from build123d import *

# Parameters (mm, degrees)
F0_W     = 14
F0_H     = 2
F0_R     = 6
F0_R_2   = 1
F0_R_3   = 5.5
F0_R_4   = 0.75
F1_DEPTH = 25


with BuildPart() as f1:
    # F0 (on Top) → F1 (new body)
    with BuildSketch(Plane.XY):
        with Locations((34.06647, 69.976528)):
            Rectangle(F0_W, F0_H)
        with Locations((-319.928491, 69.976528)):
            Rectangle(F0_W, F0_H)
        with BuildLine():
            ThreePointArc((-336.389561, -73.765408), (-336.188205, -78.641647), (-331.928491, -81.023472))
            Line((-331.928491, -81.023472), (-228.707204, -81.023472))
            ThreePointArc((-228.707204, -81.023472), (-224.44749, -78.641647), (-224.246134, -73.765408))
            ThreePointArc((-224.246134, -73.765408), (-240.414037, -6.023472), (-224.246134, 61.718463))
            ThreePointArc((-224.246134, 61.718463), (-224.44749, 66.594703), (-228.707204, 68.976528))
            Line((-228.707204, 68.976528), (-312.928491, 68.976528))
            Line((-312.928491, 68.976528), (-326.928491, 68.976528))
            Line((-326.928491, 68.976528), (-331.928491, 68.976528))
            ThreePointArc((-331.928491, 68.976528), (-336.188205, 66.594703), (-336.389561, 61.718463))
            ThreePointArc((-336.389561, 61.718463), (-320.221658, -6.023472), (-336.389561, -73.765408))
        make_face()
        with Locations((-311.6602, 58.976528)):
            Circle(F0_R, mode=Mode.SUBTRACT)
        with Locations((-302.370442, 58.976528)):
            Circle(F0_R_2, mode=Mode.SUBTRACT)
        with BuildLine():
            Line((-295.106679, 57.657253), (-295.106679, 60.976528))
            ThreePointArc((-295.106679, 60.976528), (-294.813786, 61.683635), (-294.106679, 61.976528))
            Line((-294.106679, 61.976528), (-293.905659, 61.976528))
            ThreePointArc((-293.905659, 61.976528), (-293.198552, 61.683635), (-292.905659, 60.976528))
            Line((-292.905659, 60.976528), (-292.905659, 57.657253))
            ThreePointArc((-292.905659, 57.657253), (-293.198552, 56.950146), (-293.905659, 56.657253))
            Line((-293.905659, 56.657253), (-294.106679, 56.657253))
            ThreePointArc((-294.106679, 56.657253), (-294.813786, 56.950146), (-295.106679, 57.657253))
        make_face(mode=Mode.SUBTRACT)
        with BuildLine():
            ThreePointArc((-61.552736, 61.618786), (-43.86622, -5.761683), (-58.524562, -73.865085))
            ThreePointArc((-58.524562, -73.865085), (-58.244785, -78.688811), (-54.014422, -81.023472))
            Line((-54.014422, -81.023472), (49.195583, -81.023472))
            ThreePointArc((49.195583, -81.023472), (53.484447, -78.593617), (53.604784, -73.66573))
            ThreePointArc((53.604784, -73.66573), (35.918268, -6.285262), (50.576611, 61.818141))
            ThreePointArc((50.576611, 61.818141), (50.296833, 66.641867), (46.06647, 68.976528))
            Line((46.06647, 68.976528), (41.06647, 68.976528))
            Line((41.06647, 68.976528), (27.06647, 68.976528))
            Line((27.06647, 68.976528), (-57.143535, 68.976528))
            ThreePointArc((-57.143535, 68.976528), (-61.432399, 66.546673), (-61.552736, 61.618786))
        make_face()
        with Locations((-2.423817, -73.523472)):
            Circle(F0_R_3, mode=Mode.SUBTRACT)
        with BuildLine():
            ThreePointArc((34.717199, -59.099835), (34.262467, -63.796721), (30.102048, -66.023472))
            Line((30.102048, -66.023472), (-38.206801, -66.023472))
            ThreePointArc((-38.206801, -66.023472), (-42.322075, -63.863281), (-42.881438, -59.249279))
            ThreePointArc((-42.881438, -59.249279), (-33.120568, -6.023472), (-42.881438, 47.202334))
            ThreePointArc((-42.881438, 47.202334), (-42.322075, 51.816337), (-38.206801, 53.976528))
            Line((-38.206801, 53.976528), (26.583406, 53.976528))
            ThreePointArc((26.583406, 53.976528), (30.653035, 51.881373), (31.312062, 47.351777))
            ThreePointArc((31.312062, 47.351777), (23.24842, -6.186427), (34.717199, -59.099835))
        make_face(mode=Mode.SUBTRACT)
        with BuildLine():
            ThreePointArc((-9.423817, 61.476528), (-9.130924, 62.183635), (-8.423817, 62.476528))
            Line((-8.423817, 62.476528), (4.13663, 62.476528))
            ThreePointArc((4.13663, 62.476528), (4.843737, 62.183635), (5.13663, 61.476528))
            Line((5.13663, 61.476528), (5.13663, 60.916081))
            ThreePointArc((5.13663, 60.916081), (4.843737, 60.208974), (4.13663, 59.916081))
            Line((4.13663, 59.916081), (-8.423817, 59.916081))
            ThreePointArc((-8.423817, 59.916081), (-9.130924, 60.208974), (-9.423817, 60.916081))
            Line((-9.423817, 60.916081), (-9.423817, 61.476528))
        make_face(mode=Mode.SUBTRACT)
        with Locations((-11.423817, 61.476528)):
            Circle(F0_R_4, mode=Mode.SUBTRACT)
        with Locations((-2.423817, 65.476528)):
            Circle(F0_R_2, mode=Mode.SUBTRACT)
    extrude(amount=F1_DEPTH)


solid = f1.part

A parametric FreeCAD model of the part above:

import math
import FreeCAD as App
import Part
import Sketcher
from FreeCAD import Vector

doc = App.newDocument("Part")
body = doc.addObject("PartDesign::Body", "Body")
body.AllowCompound = True

sketch1 = body.newObject("Sketcher::SketchObject", "Sketch")
sketch1.AttachmentSupport = (doc.getObject("XY_Plane"), [""])
sketch1.MapMode = "FlatFace"
sketch1.addGeometry([
    Part.LineSegment(Vector(27.07, 70.98, 0), Vector(27.07, 68.98, 0)),
    Part.LineSegment(Vector(27.07, 68.98, 0), Vector(-57.14, 68.98, 0)),
    Part.ArcOfCircle(Part.Circle(Vector(-57.14, 63.98, 0), Vector(0, 0, 1), 5), math.radians(90), math.radians(208)),
    Part.ArcOfCircle(Part.Circle(Vector(-193.83, -9.11, 0), Vector(0, 0, 1), 150), math.radians(-26), math.radians(28)),
    Part.ArcOfCircle(Part.Circle(Vector(-54.01, -76.02, 0), Vector(0, 0, 1), 5), math.radians(154), math.radians(270)),
    Part.LineSegment(Vector(-54.01, -81.02, 0), Vector(49.2, -81.02, 0)),
    Part.ArcOfCircle(Part.Circle(Vector(49.2, -76.02, 0), Vector(0, 0, 1), 5), math.radians(-90), math.radians(28)),
    Part.ArcOfCircle(Part.Circle(Vector(185.88, -2.93, 0), Vector(0, 0, 1), 150), math.radians(154), math.radians(208)),
    Part.ArcOfCircle(Part.Circle(Vector(46.07, 63.98, 0), Vector(0, 0, 1), 5), math.radians(-26), math.radians(90)),
    Part.LineSegment(Vector(46.07, 68.98, 0), Vector(41.07, 68.98, 0)),
    Part.LineSegment(Vector(41.07, 68.98, 0), Vector(41.07, 70.98, 0)),
    Part.LineSegment(Vector(41.07, 70.98, 0), Vector(27.07, 70.98, 0)),
    Part.Circle(Vector(-2.42, -73.52, 0), Vector(0, 0, 1), 5.5),
    Part.Circle(Vector(-11.42, 61.48, 0), Vector(0, 0, 1), 0.75),
    Part.ArcOfCircle(Part.Circle(Vector(173.17, -1.39, 0), Vector(0, 0, 1), 150), math.radians(161), math.radians(203)),
    Part.ArcOfCircle(Part.Circle(Vector(30.1, -61.02, 0), Vector(0, 0, 1), 5), math.radians(-90), math.radians(23)),
    Part.LineSegment(Vector(30.1, -66.02, 0), Vector(-38.21, -66.02, 0)),
    Part.ArcOfCircle(Part.Circle(Vector(-38.21, -61.02, 0), Vector(0, 0, 1), 5), math.radians(159), math.radians(270)),
    Part.ArcOfCircle(Part.Circle(Vector(-183.12, -6.02, 0), Vector(0, 0, 1), 150), math.radians(-21), math.radians(21)),
    Part.ArcOfCircle(Part.Circle(Vector(-38.21, 48.98, 0), Vector(0, 0, 1), 5), math.radians(90), math.radians(201)),
    Part.LineSegment(Vector(-38.21, 53.98, 0), Vector(26.58, 53.98, 0)),
    Part.ArcOfCircle(Part.Circle(Vector(26.58, 48.98, 0), Vector(0, 0, 1), 5), math.radians(-19), math.radians(90)),
    Part.LineSegment(Vector(-9.42, 60.92, 0), Vector(-9.42, 61.48, 0)),
    Part.ArcOfCircle(Part.Circle(Vector(-8.42, 61.48, 0), Vector(0, 0, 1), 1), math.radians(90), math.radians(180)),
    Part.LineSegment(Vector(-8.42, 62.48, 0), Vector(4.14, 62.48, 0)),
    Part.ArcOfCircle(Part.Circle(Vector(4.14, 61.48, 0), Vector(0, 0, 1), 1), math.radians(0), math.radians(90)),
    Part.LineSegment(Vector(5.14, 61.48, 0), Vector(5.14, 60.92, 0)),
    Part.ArcOfCircle(Part.Circle(Vector(4.14, 60.92, 0), Vector(0, 0, 1), 1), math.radians(-90), math.radians(0)),
    Part.LineSegment(Vector(4.14, 59.92, 0), Vector(-8.42, 59.92, 0)),
    Part.ArcOfCircle(Part.Circle(Vector(-8.42, 60.92, 0), Vector(0, 0, 1), 1), math.radians(180), math.radians(270)),
    Part.Circle(Vector(-2.42, 65.48, 0), Vector(0, 0, 1), 1),
    Part.LineSegment(Vector(-326.93, 70.98, 0), Vector(-326.93, 68.98, 0)),
    Part.LineSegment(Vector(-326.93, 68.98, 0), Vector(-331.93, 68.98, 0)),
    Part.ArcOfCircle(Part.Circle(Vector(-331.93, 63.98, 0), Vector(0, 0, 1), 5), math.radians(90), math.radians(207)),
    Part.ArcOfCircle(Part.Circle(Vector(-470.22, -6.02, 0), Vector(0, 0, 1), 150), math.radians(-27), math.radians(27)),
    Part.ArcOfCircle(Part.Circle(Vector(-331.93, -76.02, 0), Vector(0, 0, 1), 5), math.radians(153), math.radians(270)),
    Part.LineSegment(Vector(-331.93, -81.02, 0), Vector(-228.71, -81.02, 0)),
    Part.ArcOfCircle(Part.Circle(Vector(-228.71, -76.02, 0), Vector(0, 0, 1), 5), math.radians(-90), math.radians(27)),
    Part.ArcOfCircle(Part.Circle(Vector(-90.41, -6.02, 0), Vector(0, 0, 1), 150), math.radians(153), math.radians(207)),
    Part.ArcOfCircle(Part.Circle(Vector(-228.71, 63.98, 0), Vector(0, 0, 1), 5), math.radians(-27), math.radians(90)),
    Part.LineSegment(Vector(-228.71, 68.98, 0), Vector(-312.93, 68.98, 0)),
    Part.LineSegment(Vector(-312.93, 68.98, 0), Vector(-312.93, 70.98, 0)),
    Part.LineSegment(Vector(-312.93, 70.98, 0), Vector(-326.93, 70.98, 0)),
    Part.Circle(Vector(-311.66, 58.98, 0), Vector(0, 0, 1), 6),
    Part.Circle(Vector(-302.37, 58.98, 0), Vector(0, 0, 1), 1),
    Part.ArcOfCircle(Part.Circle(Vector(-294.11, 57.66, 0), Vector(0, 0, 1), 1), math.radians(180), math.radians(270)),
    Part.LineSegment(Vector(-295.11, 57.66, 0), Vector(-295.11, 60.98, 0)),
    Part.ArcOfCircle(Part.Circle(Vector(-294.11, 60.98, 0), Vector(0, 0, 1), 1), math.radians(90), math.radians(180)),
    Part.LineSegment(Vector(-294.11, 61.98, 0), Vector(-293.91, 61.98, 0)),
    Part.ArcOfCircle(Part.Circle(Vector(-293.91, 60.98, 0), Vector(0, 0, 1), 1), math.radians(0), math.radians(90)),
    Part.LineSegment(Vector(-292.91, 60.98, 0), Vector(-292.91, 57.66, 0)),
    Part.ArcOfCircle(Part.Circle(Vector(-293.91, 57.66, 0), Vector(0, 0, 1), 1), math.radians(-90), math.radians(0)),
    Part.LineSegment(Vector(-293.91, 56.66, 0), Vector(-294.11, 56.66, 0)),
], False)
sketch1.addConstraint([
    Sketcher.Constraint("Coincident", 0, 2, 1, 1),
    Sketcher.Constraint("Tangent", 1, 2, 2, 1),
    Sketcher.Constraint("Tangent", 2, 2, 3, 2),
    Sketcher.Constraint("Tangent", 3, 1, 4, 1),
    Sketcher.Constraint("Tangent", 4, 2, 5, 1),
    Sketcher.Constraint("Tangent", 5, 2, 6, 1),
    Sketcher.Constraint("Tangent", 6, 2, 7, 2),
    Sketcher.Constraint("Tangent", 7, 1, 8, 1),
    Sketcher.Constraint("Tangent", 8, 2, 9, 1),
    Sketcher.Constraint("Coincident", 9, 2, 10, 1),
    Sketcher.Constraint("Coincident", 10, 2, 11, 1),
    Sketcher.Constraint("Coincident", 11, 2, 0, 1),
    Sketcher.Constraint("Tangent", 14, 2, 15, 2),
    Sketcher.Constraint("Tangent", 15, 1, 16, 1),
    Sketcher.Constraint("Tangent", 16, 2, 17, 2),
    Sketcher.Constraint("Tangent", 17, 1, 18, 1),
    Sketcher.Constraint("Tangent", 18, 2, 19, 2),
    Sketcher.Constraint("Tangent", 19, 1, 20, 1),
    Sketcher.Constraint("Tangent", 20, 2, 21, 2),
    Sketcher.Constraint("Tangent", 21, 1, 14, 1),
    Sketcher.Constraint("Tangent", 22, 2, 23, 2),
    Sketcher.Constraint("Tangent", 23, 1, 24, 1),
    Sketcher.Constraint("Tangent", 24, 2, 25, 2),
    Sketcher.Constraint("Tangent", 25, 1, 26, 1),
    Sketcher.Constraint("Tangent", 26, 2, 27, 2),
    Sketcher.Constraint("Tangent", 27, 1, 28, 1),
    Sketcher.Constraint("Tangent", 28, 2, 29, 2),
    Sketcher.Constraint("Tangent", 29, 1, 22, 1),
    Sketcher.Constraint("Coincident", 31, 2, 32, 1),
    Sketcher.Constraint("Tangent", 32, 2, 33, 1),
    Sketcher.Constraint("Tangent", 33, 2, 34, 2),
    Sketcher.Constraint("Tangent", 34, 1, 35, 1),
    Sketcher.Constraint("Tangent", 35, 2, 36, 1),
    Sketcher.Constraint("Tangent", 36, 2, 37, 1),
    Sketcher.Constraint("Tangent", 37, 2, 38, 2),
    Sketcher.Constraint("Tangent", 38, 1, 39, 1),
    Sketcher.Constraint("Tangent", 39, 2, 40, 1),
    Sketcher.Constraint("Coincident", 40, 2, 41, 1),
    Sketcher.Constraint("Coincident", 41, 2, 42, 1),
    Sketcher.Constraint("Coincident", 42, 2, 31, 1),
    Sketcher.Constraint("Tangent", 45, 1, 46, 1),
    Sketcher.Constraint("Tangent", 46, 2, 47, 2),
    Sketcher.Constraint("Tangent", 47, 1, 48, 1),
    Sketcher.Constraint("Tangent", 48, 2, 49, 2),
    Sketcher.Constraint("Tangent", 49, 1, 50, 1),
    Sketcher.Constraint("Tangent", 50, 2, 51, 2),
    Sketcher.Constraint("Tangent", 51, 1, 52, 1),
    Sketcher.Constraint("Tangent", 52, 2, 45, 2),
    Sketcher.Constraint("Vertical", 0),
    Sketcher.Constraint("Horizontal", 1),
    Sketcher.Constraint("Horizontal", 5),
    Sketcher.Constraint("Horizontal", 9),
    Sketcher.Constraint("Vertical", 10),
    Sketcher.Constraint("Horizontal", 11),
    Sketcher.Constraint("Horizontal", 16),
    Sketcher.Constraint("Horizontal", 20),
    Sketcher.Constraint("Vertical", 22),
    Sketcher.Constraint("Horizontal", 24),
    Sketcher.Constraint("Vertical", 26),
    Sketcher.Constraint("Horizontal", 28),
    Sketcher.Constraint("Vertical", 31),
    Sketcher.Constraint("Horizontal", 32),
    Sketcher.Constraint("Horizontal", 36),
    Sketcher.Constraint("Horizontal", 40),
    Sketcher.Constraint("Vertical", 41),
    Sketcher.Constraint("Horizontal", 42),
    Sketcher.Constraint("Vertical", 46),
    Sketcher.Constraint("Horizontal", 48),
    Sketcher.Constraint("Vertical", 50),
    Sketcher.Constraint("Horizontal", 52),
    Sketcher.Constraint("Equal", 2, 4),
    Sketcher.Constraint("Equal", 4, 6),
    Sketcher.Constraint("Equal", 6, 8),
    Sketcher.Constraint("Equal", 7, 14),
    Sketcher.Constraint("Equal", 8, 15),
    Sketcher.Constraint("Equal", 15, 17),
    Sketcher.Constraint("Equal", 17, 19),
    Sketcher.Constraint("Equal", 19, 21),
    Sketcher.Constraint("Equal", 23, 25),
    Sketcher.Constraint("Equal", 25, 27),
    Sketcher.Constraint("Equal", 27, 29),
    Sketcher.Constraint("Equal", 29, 30),
    Sketcher.Constraint("Equal", 21, 33),
    Sketcher.Constraint("Equal", 3, 34),
    Sketcher.Constraint("Equal", 33, 35),
    Sketcher.Constraint("Equal", 35, 37),
    Sketcher.Constraint("Equal", 34, 38),
    Sketcher.Constraint("Equal", 37, 39),
    Sketcher.Constraint("Equal", 30, 44),
    Sketcher.Constraint("Equal", 44, 45),
    Sketcher.Constraint("Equal", 45, 47),
    Sketcher.Constraint("Equal", 47, 49),
    Sketcher.Constraint("Equal", 49, 51),
    Sketcher.Constraint("Horizontal", 2, 3, 8, 3),
    Sketcher.Constraint("Horizontal", 13, 3, 23, 3),
    Sketcher.Constraint("Horizontal", 8, 3, 33, 3),
    Sketcher.Constraint("Horizontal", 18, 3, 34, 3),
    Sketcher.Constraint("Horizontal", 6, 3, 35, 3),
    Sketcher.Constraint("Horizontal", 34, 3, 38, 3),
    Sketcher.Constraint("Horizontal", 33, 3, 39, 3),
    Sketcher.Constraint("Horizontal", 43, 3, 44, 3),
    Sketcher.Constraint("Horizontal", 11, 2, 41, 2),
    Sketcher.Constraint("Vertical", 17, 3, 19, 3),
    Sketcher.Constraint("Vertical", 12, 3, 30, 3),
    Sketcher.Constraint("Vertical", 33, 3, 35, 3),
    Sketcher.Constraint("Equal", 9, 32),
    Sketcher.Constraint("Equal", 11, 42),
    Sketcher.Constraint("Diameter", 12, 11.0),
    Sketcher.Constraint("Diameter", 30, 2.0),
    Sketcher.Constraint("Diameter", 43, 12.0),
    Sketcher.Constraint("Radius", 2, 5.0),
    Sketcher.Constraint("Radius", 3, 150.0),
    Sketcher.Constraint("Diameter", 13, 1.5),
    Sketcher.Constraint("DistanceX", 9, 2, 9, 1, 5.0),
    Sketcher.Constraint("DistanceX", 11, 2, 11, 1, 14.0),
    Sketcher.Constraint("DistanceY", 0, 2, 0, 1, 2.0),
    Sketcher.Constraint("Radius", 7, 149.999995),
    Sketcher.Constraint("Radius", 18, 150.000003),
    Sketcher.Constraint("DistanceX", 16, 2, 16, 1, 68.308849),
    Sketcher.Constraint("DistanceX", 48, 1, 48, 2, 0.20102),
    Sketcher.Constraint("DistanceX", 17, 3, -1, 1, 38.206801),
    Sketcher.Constraint("DistanceX", 43, 3, -1, 1, 311.6602),
    Sketcher.Constraint("DistanceX", 1, 2, 1, 1, 84.210005),
    Sketcher.Constraint("DistanceX", 5, 1, 5, 2, 103.210005),
    Sketcher.Constraint("DistanceX", 20, 1, 20, 2, 64.790207),
    Sketcher.Constraint("DistanceX", 24, 1, 24, 2, 12.560447),
    Sketcher.Constraint("DistanceX", 36, 1, 36, 2, 103.221287),
    Sketcher.Constraint("DistanceY", 22, 1, 22, 2, 0.560447),
    Sketcher.Constraint("DistanceY", 46, 1, 46, 2, 3.319275),
    Sketcher.Constraint("DistanceY", 6, 3, -1, 1, 76.023472),
    Sketcher.Constraint("DistanceX", -1, 1, 7, 3, 185.880811),
    Sketcher.Constraint("DistanceY", 7, 3, -1, 1, 2.933478),
    Sketcher.Constraint("DistanceX", -1, 1, 8, 3, 46.06647),
    Sketcher.Constraint("DistanceY", 12, 3, -1, 1, 73.523472),
    Sketcher.Constraint("DistanceY", -1, 1, 13, 3, 61.476528),
    Sketcher.Constraint("DistanceY", 15, 3, -1, 1, 61.023472),
    Sketcher.Constraint("DistanceX", -1, 1, 25, 3, 4.136631),
    Sketcher.Constraint("DistanceY", -1, 1, 30, 3, 65.476528),
    Sketcher.Constraint("DistanceX", 33, 3, -1, 1, 331.928491),
    Sketcher.Constraint("DistanceY", -1, 1, 43, 3, 58.976528),
    Sketcher.Constraint("DistanceX", 45, 3, -1, 1, 294.10668),
    Sketcher.Constraint("DistanceY", -1, 1, 47, 3, 60.976529),
    Sketcher.Constraint("DistanceX", 12, 3, -1, 1, 2.423817),
    Sketcher.Constraint("DistanceX", 13, 3, -1, 1, 11.423817),
    Sketcher.Constraint("DistanceX", 44, 3, -1, 1, 302.370442),
])
pad1 = body.newObject("PartDesign::Pad", "Pad")
pad1.Profile = sketch1
pad1.Length = 25

doc.recompute()
